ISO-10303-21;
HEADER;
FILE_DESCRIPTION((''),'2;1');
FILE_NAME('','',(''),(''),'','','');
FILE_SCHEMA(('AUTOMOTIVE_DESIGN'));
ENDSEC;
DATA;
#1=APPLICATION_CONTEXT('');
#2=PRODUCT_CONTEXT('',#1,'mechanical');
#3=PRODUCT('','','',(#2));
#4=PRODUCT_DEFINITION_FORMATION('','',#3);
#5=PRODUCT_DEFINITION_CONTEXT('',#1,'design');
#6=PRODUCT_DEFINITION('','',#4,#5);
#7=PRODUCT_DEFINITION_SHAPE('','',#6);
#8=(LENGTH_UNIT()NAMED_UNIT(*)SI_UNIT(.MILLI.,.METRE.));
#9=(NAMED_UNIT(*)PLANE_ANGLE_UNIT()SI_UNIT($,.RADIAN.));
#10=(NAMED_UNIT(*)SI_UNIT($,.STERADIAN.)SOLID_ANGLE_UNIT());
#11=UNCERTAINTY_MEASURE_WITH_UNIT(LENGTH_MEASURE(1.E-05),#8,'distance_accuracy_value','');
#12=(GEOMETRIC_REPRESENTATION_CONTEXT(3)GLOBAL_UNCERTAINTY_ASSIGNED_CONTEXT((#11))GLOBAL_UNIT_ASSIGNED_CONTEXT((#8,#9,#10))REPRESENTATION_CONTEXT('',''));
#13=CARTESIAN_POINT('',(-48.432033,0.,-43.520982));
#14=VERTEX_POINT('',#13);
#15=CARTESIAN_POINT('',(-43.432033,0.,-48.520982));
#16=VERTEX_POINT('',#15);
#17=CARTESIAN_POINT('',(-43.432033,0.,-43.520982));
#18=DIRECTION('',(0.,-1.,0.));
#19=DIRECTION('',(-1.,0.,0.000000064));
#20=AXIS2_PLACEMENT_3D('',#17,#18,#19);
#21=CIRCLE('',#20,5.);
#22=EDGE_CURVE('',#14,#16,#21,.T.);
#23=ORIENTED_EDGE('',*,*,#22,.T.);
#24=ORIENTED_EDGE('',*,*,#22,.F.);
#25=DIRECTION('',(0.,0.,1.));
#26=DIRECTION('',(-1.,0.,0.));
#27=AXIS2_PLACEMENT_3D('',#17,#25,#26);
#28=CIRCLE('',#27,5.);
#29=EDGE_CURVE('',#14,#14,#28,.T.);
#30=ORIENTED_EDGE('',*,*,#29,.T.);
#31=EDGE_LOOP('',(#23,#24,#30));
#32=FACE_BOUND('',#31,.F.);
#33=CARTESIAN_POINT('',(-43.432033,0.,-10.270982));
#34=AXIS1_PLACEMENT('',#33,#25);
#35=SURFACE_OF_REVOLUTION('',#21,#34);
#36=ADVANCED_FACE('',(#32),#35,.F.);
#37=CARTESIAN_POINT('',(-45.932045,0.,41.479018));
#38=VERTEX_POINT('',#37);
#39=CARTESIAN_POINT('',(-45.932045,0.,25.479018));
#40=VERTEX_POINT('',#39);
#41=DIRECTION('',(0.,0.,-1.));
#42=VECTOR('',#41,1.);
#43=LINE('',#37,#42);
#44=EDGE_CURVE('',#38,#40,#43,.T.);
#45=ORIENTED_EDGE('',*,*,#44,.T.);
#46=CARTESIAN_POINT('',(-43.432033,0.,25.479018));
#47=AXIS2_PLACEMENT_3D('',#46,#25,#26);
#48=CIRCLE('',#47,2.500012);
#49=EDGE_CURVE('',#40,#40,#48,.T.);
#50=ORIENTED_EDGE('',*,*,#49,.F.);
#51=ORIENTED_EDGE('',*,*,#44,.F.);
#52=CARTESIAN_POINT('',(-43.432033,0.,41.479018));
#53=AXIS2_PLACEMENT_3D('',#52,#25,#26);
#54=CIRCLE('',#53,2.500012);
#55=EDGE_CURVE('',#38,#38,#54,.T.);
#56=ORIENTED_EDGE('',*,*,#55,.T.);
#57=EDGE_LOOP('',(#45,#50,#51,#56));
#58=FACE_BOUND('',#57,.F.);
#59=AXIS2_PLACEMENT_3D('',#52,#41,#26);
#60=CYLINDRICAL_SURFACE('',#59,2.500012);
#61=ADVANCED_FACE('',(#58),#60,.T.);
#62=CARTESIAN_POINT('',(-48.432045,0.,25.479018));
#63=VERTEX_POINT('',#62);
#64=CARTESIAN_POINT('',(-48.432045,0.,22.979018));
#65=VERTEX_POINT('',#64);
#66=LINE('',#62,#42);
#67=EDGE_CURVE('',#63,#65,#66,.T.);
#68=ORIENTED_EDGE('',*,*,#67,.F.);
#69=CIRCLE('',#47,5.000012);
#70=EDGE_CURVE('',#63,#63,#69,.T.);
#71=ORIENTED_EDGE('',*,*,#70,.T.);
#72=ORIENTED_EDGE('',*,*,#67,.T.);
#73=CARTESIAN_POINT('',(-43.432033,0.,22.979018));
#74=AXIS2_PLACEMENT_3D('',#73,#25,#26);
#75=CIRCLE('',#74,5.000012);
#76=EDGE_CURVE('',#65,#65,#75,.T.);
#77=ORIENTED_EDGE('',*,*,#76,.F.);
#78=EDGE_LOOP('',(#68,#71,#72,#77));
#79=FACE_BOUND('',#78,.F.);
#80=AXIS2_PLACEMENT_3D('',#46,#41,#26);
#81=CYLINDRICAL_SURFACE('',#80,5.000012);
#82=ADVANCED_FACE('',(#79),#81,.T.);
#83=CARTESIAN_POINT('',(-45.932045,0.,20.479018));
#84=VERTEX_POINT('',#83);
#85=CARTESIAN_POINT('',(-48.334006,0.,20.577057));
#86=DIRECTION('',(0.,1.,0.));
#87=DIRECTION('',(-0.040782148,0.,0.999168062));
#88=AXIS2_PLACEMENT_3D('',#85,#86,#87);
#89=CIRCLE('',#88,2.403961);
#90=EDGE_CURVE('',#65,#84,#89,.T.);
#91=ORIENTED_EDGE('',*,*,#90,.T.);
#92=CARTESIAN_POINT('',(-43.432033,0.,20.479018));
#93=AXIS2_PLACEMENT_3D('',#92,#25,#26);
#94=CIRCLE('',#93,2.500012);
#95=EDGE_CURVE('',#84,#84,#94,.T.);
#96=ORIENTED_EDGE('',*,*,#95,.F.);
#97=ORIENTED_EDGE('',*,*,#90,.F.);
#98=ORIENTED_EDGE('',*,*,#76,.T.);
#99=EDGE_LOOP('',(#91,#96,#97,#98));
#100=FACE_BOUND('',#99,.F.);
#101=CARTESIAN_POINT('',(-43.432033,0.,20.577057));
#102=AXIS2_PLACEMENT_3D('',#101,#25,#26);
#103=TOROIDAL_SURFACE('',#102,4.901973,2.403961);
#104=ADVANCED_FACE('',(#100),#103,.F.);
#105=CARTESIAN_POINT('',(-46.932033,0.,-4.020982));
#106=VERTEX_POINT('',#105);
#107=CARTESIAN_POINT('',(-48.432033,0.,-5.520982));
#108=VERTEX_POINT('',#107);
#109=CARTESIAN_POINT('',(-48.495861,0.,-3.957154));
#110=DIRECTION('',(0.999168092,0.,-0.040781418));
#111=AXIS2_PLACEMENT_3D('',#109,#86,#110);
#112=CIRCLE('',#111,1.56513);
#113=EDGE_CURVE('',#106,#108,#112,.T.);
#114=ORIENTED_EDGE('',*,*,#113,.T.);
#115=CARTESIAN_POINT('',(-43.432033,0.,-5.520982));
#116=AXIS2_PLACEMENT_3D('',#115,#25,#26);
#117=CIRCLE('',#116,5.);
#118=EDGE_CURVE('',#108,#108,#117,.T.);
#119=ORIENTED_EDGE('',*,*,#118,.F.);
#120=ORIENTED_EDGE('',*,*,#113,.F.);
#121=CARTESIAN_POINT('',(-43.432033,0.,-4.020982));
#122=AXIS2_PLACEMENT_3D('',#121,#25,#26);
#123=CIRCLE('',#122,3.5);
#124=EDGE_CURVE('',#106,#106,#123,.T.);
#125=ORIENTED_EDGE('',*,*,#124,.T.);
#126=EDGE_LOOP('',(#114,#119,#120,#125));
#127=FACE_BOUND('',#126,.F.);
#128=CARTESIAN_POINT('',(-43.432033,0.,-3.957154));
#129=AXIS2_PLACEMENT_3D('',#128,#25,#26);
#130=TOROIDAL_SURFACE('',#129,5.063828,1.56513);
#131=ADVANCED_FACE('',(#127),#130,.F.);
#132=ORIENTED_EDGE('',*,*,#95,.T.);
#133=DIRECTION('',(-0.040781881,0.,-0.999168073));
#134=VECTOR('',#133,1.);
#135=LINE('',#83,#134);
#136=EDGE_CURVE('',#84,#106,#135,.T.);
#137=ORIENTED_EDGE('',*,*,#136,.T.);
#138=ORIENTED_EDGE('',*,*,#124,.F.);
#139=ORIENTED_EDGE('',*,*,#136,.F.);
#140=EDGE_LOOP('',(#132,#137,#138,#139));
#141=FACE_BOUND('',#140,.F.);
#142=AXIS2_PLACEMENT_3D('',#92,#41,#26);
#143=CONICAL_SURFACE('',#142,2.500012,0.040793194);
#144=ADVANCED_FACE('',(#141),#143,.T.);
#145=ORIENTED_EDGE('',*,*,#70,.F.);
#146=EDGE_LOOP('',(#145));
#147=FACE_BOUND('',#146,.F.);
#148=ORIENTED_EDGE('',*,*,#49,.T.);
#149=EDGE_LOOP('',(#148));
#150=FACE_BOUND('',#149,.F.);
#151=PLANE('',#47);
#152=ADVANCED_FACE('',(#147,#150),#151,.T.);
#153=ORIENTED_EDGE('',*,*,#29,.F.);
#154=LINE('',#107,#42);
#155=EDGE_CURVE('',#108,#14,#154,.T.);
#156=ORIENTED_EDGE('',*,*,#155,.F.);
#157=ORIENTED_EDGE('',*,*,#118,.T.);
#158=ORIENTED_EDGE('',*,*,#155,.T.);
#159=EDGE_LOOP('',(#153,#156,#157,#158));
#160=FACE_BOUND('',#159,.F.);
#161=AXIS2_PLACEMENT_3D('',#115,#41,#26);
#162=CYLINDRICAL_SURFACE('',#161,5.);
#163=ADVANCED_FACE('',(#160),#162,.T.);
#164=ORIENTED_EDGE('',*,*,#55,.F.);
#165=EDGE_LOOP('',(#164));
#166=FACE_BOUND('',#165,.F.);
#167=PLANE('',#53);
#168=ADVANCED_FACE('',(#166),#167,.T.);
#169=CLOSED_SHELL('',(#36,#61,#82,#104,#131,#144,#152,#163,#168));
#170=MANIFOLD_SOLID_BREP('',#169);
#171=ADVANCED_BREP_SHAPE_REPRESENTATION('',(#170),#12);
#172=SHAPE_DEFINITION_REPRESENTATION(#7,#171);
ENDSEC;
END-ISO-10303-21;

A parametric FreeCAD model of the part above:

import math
import FreeCAD as App
import Part
import Sketcher
from FreeCAD import Vector
Q = App.Units.Quantity

doc = App.newDocument("Part")
params = doc.addObject("Spreadsheet::Sheet", "Params")
for row, (alias, value) in enumerate([
    ("sketch1_radius", "5 mm"),
    ("sketch1_height", "38 mm"),
    ("sketch1_height2", "90 mm"),
    ("sketch1_height3", "16 mm"),
    ("sketch1_width", "2.5 mm"),
    ("revolution_angle", "360 deg"),
], start=1):
    params.set(f"A{row}", alias)
    params.set(f"B{row}", "=" + value)
    params.setAlias(f"B{row}", alias)

body = doc.addObject("PartDesign::Body", "Body")

# Sketch on XZ plane
sketch1 = body.newObject("Sketcher::SketchObject", "Sketch")
sketch1.AttachmentSupport = (doc.getObject("XZ_Plane"), [""])
sketch1.MapMode = "FlatFace"
sketch1.addGeometry(Part.LineSegment(Vector(-48.4, -5.5, 0), Vector(-48.4, -43.5, 0)), False)
sketch1.addGeometry(Part.ArcOfCircle(Part.Circle(Vector(-43.4, -43.5, 0), Vector(0, 0, 1), 5), math.radians(180), math.radians(270)), False)
sketch1.addGeometry(Part.LineSegment(Vector(-43.4, -48.5, 0), Vector(-43.4, 41.5, 0)), False)
sketch1.addGeometry(Part.LineSegment(Vector(-43.4, 41.5, 0), Vector(-45.9, 41.5, 0)), False)
sketch1.addGeometry(Part.LineSegment(Vector(-45.9, 41.5, 0), Vector(-45.9, 25.5, 0)), False)
sketch1.addGeometry(Part.LineSegment(Vector(-45.9, 25.5, 0), Vector(-48.4, 25.5, 0)), False)
sketch1.addGeometry(Part.LineSegment(Vector(-48.4, 25.5, 0), Vector(-48.4, 23, 0)), False)
sketch1.addGeometry(Part.ArcOfCircle(Part.Circle(Vector(-48.3, 20.6, 0), Vector(0, 0, 1), 2.4), math.radians(-2), math.radians(92)), False)
sketch1.addGeometry(Part.LineSegment(Vector(-45.9, 20.5, 0), Vector(-46.9, -4, 0)), False)
sketch1.addGeometry(Part.ArcOfCircle(Part.Circle(Vector(-48.5, -4, 0), Vector(0, 0, 1), 1.6), math.radians(-88), math.radians(-2)), False)
sketch1.addGeometry(Part.LineSegment(Vector(-43.4, -48.5, 0), Vector(-43.4, 41.5, 0)), True)  # axis
sketch1.addConstraint(Sketcher.Constraint("Tangent", 0, 2, 1, 1))
sketch1.addConstraint(Sketcher.Constraint("Coincident", 1, 2, 2, 1))
sketch1.addConstraint(Sketcher.Constraint("Coincident", 2, 2, 3, 1))
sketch1.addConstraint(Sketcher.Constraint("Coincident", 3, 2, 4, 1))
sketch1.addConstraint(Sketcher.Constraint("Coincident", 4, 2, 5, 1))
sketch1.addConstraint(Sketcher.Constraint("Coincident", 5, 2, 6, 1))
sketch1.addConstraint(Sketcher.Constraint("Coincident", 6, 2, 7, 2))
sketch1.addConstraint(Sketcher.Constraint("Tangent", 7, 1, 8, 1))
sketch1.addConstraint(Sketcher.Constraint("Tangent", 8, 2, 9, 2))
sketch1.addConstraint(Sketcher.Constraint("Coincident", 9, 1, 0, 1))
sketch1.addConstraint(Sketcher.Constraint("Vertical", 0))
sketch1.addConstraint(Sketcher.Constraint("Vertical", 2))
sketch1.addConstraint(Sketcher.Constraint("Horizontal", 3))
sketch1.addConstraint(Sketcher.Constraint("Vertical", 4))
sketch1.addConstraint(Sketcher.Constraint("Horizontal", 5))
sketch1.addConstraint(Sketcher.Constraint("Vertical", 6))
sketch1.addConstraint(Sketcher.Constraint("Vertical", 10))
sketch1.addConstraint(Sketcher.Constraint("Coincident", 10, 1, 1, 2))
sketch1.addConstraint(Sketcher.Constraint("Horizontal", 3, 2, 10, 2))
sketch1.addConstraint(Sketcher.Constraint("Vertical", 4, 2, 7, 1))
sketch1.addConstraint(Sketcher.Constraint("Equal", 5, 6))
sketch1.addConstraint(Sketcher.Constraint("Radius", 1, Q("5 mm")))
sketch1.addConstraint(Sketcher.Constraint("DistanceY", 0, 2, 0, 1, Q("38 mm")))
sketch1.addConstraint(Sketcher.Constraint("DistanceY", 2, 1, 2, 2, Q("90 mm")))
sketch1.addConstraint(Sketcher.Constraint("DistanceY", 4, 2, 4, 1, Q("16 mm")))
sketch1.addConstraint(Sketcher.Constraint("DistanceX", 5, 2, 5, 1, Q("2.5 mm")))
sketch1.addConstraint(Sketcher.Constraint("DistanceX", 0, 2, 1, 2, Q("5 mm")))
sketch1.addConstraint(Sketcher.Constraint("DistanceY", 7, 1, 4, 2, Q("5 mm")))
sketch1.addConstraint(Sketcher.Constraint("DistanceY", 8, 2, 6, 2, Q("27 mm")))
sketch1.addConstraint(Sketcher.Constraint("DistanceX", 9, 1, 8, 2, Q("1.5 mm")))
sketch1.addConstraint(Sketcher.Constraint("Radius", 7, Q("2.403961 mm")))
sketch1.addConstraint(Sketcher.Constraint("DistanceX", 9, 3, -1, 1, Q("48.495861 mm")))
sketch1.addConstraint(Sketcher.Constraint("DistanceY", 0, 2, -1, 1, Q("43.520982 mm")))
sketch1.setExpression("Constraints[21]", "Params.sketch1_radius")
sketch1.setExpression("Constraints[22]", "Params.sketch1_height")
sketch1.setExpression("Constraints[23]", "Params.sketch1_height2")
sketch1.setExpression("Constraints[24]", "Params.sketch1_height3")
sketch1.setExpression("Constraints[25]", "Params.sketch1_width")
revolution = body.newObject("PartDesign::Revolution", "Revolution")
revolution.Profile = sketch1
revolution.ReferenceAxis = (sketch1, ["Axis0"])
revolution.setExpression("Angle", "Params.revolution_angle")

doc.recompute()
